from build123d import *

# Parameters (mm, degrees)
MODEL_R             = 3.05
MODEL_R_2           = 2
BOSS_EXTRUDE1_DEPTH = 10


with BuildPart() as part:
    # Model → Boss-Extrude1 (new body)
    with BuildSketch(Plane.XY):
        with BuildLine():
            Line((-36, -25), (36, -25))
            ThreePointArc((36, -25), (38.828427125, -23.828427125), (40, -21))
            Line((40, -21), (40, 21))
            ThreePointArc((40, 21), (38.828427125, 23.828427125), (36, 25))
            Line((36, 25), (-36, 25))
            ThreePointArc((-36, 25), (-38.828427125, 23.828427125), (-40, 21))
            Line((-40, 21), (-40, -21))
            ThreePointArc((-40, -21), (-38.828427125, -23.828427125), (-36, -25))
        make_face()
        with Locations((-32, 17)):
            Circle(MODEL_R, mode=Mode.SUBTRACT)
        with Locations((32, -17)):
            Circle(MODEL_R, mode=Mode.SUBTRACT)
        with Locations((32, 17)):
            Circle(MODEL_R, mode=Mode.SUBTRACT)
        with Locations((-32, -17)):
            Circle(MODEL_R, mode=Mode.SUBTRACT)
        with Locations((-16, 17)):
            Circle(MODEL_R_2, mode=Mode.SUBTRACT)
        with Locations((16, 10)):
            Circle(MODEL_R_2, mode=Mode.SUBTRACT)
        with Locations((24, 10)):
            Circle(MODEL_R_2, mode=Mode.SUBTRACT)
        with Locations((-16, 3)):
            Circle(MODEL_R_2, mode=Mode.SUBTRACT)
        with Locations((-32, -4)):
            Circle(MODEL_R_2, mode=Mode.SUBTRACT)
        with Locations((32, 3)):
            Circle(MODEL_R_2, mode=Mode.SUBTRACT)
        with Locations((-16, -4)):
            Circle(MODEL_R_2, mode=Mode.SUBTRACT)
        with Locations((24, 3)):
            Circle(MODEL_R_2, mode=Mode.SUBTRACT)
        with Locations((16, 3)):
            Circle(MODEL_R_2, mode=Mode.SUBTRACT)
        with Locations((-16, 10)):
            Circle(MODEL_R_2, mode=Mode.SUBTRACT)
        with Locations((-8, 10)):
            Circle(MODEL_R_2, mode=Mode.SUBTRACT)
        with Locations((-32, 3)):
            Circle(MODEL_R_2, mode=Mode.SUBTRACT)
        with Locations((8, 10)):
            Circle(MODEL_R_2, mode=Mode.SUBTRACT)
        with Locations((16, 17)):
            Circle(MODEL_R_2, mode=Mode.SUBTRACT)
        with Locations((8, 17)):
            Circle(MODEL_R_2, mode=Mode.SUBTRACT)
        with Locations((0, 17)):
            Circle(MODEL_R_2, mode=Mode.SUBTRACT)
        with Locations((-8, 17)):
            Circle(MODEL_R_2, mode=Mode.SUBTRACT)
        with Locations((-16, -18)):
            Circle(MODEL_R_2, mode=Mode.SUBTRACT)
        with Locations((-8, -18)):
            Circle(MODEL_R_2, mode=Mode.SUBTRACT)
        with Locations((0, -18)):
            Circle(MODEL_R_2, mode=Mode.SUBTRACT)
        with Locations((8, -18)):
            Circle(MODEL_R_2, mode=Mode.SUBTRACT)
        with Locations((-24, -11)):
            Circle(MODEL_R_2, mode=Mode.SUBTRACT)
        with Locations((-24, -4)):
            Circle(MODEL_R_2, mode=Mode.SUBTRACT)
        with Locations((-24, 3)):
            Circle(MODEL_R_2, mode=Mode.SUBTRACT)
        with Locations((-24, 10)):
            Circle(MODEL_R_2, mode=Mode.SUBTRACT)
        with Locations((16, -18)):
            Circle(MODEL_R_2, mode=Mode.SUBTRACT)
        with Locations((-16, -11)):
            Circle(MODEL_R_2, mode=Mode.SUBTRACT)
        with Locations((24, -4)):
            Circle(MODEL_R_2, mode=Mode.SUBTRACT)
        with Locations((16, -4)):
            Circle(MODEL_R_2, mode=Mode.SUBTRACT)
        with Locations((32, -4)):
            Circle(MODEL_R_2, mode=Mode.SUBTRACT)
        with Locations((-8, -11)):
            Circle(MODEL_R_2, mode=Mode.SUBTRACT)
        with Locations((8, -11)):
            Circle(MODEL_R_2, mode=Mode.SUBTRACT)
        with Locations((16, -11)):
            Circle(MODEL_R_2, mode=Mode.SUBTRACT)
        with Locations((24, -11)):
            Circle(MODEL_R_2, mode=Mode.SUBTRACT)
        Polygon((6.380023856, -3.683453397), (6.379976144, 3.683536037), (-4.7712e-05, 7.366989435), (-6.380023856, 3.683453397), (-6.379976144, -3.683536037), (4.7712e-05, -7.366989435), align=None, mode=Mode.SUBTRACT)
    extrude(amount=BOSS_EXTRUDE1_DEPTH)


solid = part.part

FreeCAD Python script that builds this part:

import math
import FreeCAD as App
import Part
import Sketcher
Q = App.Units.Quantity


def add_polygon(sketch, points):
    """Adds a closed chain of lines whose ends are joined by coincident constraints."""
    first, n = sketch.GeometryCount, len(points)
    for a, b in zip(points, points[1:] + points[:1]):
        sketch.addGeometry(Part.LineSegment(App.Vector(*a, 0), App.Vector(*b, 0)), False)
    for i in range(n):
        sketch.addConstraint(Sketcher.Constraint("Coincident", first + i, 2, first + (i + 1) % n, 1))

doc = App.newDocument("Part")
body = doc.addObject("PartDesign::Body", "Body")

sketch1 = body.newObject("Sketcher::SketchObject", "Sketch")
sketch1.AttachmentSupport = (doc.getObject("XY_Plane"), [""])
sketch1.MapMode = "FlatFace"
sketch1.addGeometry(Part.LineSegment(App.Vector(-36, -25, 0), App.Vector(36, -25, 0)), False)
sketch1.addGeometry(Part.ArcOfCircle(Part.Circle(App.Vector(36, -21, 0), App.Vector(0, 0, 1), 4), math.radians(-90), math.radians(0)), False)
sketch1.addGeometry(Part.LineSegment(App.Vector(40, -21, 0), App.Vector(40, 21, 0)), False)
sketch1.addGeometry(Part.ArcOfCircle(Part.Circle(App.Vector(36, 21, 0), App.Vector(0, 0, 1), 4), math.radians(0), math.radians(90)), False)
sketch1.addGeometry(Part.LineSegment(App.Vector(36, 25, 0), App.Vector(-36, 25, 0)), False)
sketch1.addGeometry(Part.ArcOfCircle(Part.Circle(App.Vector(-36, 21, 0), App.Vector(0, 0, 1), 4), math.radians(90), math.radians(180)), False)
sketch1.addGeometry(Part.LineSegment(App.Vector(-40, 21, 0), App.Vector(-40, -21, 0)), False)
sketch1.addGeometry(Part.ArcOfCircle(Part.Circle(App.Vector(-36, -21, 0), App.Vector(0, 0, 1), 4), math.radians(180), math.radians(270)), False)
sketch1.addGeometry(Part.Circle(App.Vector(-32, -17, 0), App.Vector(0, 0, 1), 3.05), False)
sketch1.addGeometry(Part.Circle(App.Vector(-24, -11, 0), App.Vector(0, 0, 1), 2), False)
sketch1.addGeometry(Part.Circle(App.Vector(-16, -18, 0), App.Vector(0, 0, 1), 2), False)
sketch1.addGeometry(Part.Circle(App.Vector(-8, -18, 0), App.Vector(0, 0, 1), 2), False)
sketch1.addGeometry(Part.Circle(App.Vector(-16, -11, 0), App.Vector(0, 0, 1), 2), False)
sketch1.addGeometry(Part.Circle(App.Vector(-8, -11, 0), App.Vector(0, 0, 1), 2), False)
sketch1.addGeometry(Part.Circle(App.Vector(-32, -4, 0), App.Vector(0, 0, 1), 2), False)
sketch1.addGeometry(Part.Circle(App.Vector(-24, -4, 0), App.Vector(0, 0, 1), 2), False)
sketch1.addGeometry(Part.Circle(App.Vector(-16, -4, 0), App.Vector(0, 0, 1), 2), False)
sketch1.addGeometry(Part.Circle(App.Vector(0, -18, 0), App.Vector(0, 0, 1), 2), False)
sketch1.addGeometry(Part.Circle(App.Vector(8, -18, 0), App.Vector(0, 0, 1), 2), False)
sketch1.addGeometry(Part.Circle(App.Vector(16, -18, 0), App.Vector(0, 0, 1), 2), False)
sketch1.addGeometry(Part.Circle(App.Vector(8, -11, 0), App.Vector(0, 0, 1), 2), False)
sketch1.addGeometry(Part.Circle(App.Vector(16, -11, 0), App.Vector(0, 0, 1), 2), False)
sketch1.addGeometry(Part.Circle(App.Vector(32, -17, 0), App.Vector(0, 0, 1), 3.05), False)
sketch1.addGeometry(Part.Circle(App.Vector(24, -11, 0), App.Vector(0, 0, 1), 2), False)
add_polygon(sketch1, [(6.379976, 3.683536), (6.380024, -3.683453), (0.000048, -7.366989), (-6.379976, -3.683536), (-6.380024, 3.683453), (-0.000048, 7.366989)])
sketch1.addGeometry(Part.Circle(App.Vector(16, -4, 0), App.Vector(0, 0, 1), 2), False)
sketch1.addGeometry(Part.Circle(App.Vector(24, -4, 0), App.Vector(0, 0, 1), 2), False)
sketch1.addGeometry(Part.Circle(App.Vector(32, -4, 0), App.Vector(0, 0, 1), 2), False)
sketch1.addGeometry(Part.Circle(App.Vector(-32, 3, 0), App.Vector(0, 0, 1), 2), False)
sketch1.addGeometry(Part.Circle(App.Vector(-24, 3, 0), App.Vector(0, 0, 1), 2), False)
sketch1.addGeometry(Part.Circle(App.Vector(-24, 10, 0), App.Vector(0, 0, 1), 2), False)
sketch1.addGeometry(Part.Circle(App.Vector(-16, 3, 0), App.Vector(0, 0, 1), 2), False)
sketch1.addGeometry(Part.Circle(App.Vector(-16, 10, 0), App.Vector(0, 0, 1), 2), False)
sketch1.addGeometry(Part.Circle(App.Vector(-8, 10, 0), App.Vector(0, 0, 1), 2), False)
sketch1.addGeometry(Part.Circle(App.Vector(-32, 17, 0), App.Vector(0, 0, 1), 3.05), False)
sketch1.addGeometry(Part.Circle(App.Vector(-16, 17, 0), App.Vector(0, 0, 1), 2), False)
sketch1.addGeometry(Part.Circle(App.Vector(-8, 17, 0), App.Vector(0, 0, 1), 2), False)
sketch1.addGeometry(Part.Circle(App.Vector(16, 3, 0), App.Vector(0, 0, 1), 2), False)
sketch1.addGeometry(Part.Circle(App.Vector(8, 10, 0), App.Vector(0, 0, 1), 2), False)
sketch1.addGeometry(Part.Circle(App.Vector(16, 10, 0), App.Vector(0, 0, 1), 2), False)
sketch1.addGeometry(Part.Circle(App.Vector(24, 3, 0), App.Vector(0, 0, 1), 2), False)
sketch1.addGeometry(Part.Circle(App.Vector(32, 3, 0), App.Vector(0, 0, 1), 2), False)
sketch1.addGeometry(Part.Circle(App.Vector(24, 10, 0), App.Vector(0, 0, 1), 2), False)
sketch1.addGeometry(Part.Circle(App.Vector(0, 17, 0), App.Vector(0, 0, 1), 2), False)
sketch1.addGeometry(Part.Circle(App.Vector(8, 17, 0), App.Vector(0, 0, 1), 2), False)
sketch1.addGeometry(Part.Circle(App.Vector(16, 17, 0), App.Vector(0, 0, 1), 2), False)
sketch1.addGeometry(Part.Circle(App.Vector(32, 17, 0), App.Vector(0, 0, 1), 3.05), False)
sketch1.addConstraint(Sketcher.Constraint("Tangent", 0, 2, 1, 1))
sketch1.addConstraint(Sketcher.Constraint("Tangent", 1, 2, 2, 1))
sketch1.addConstraint(Sketcher.Constraint("Tangent", 2, 2, 3, 1))
sketch1.addConstraint(Sketcher.Constraint("Tangent", 3, 2, 4, 1))
sketch1.addConstraint(Sketcher.Constraint("Tangent", 4, 2, 5, 1))
sketch1.addConstraint(Sketcher.Constraint("Tangent", 5, 2, 6, 1))
sketch1.addConstraint(Sketcher.Constraint("Tangent", 6, 2, 7, 1))
sketch1.addConstraint(Sketcher.Constraint("Tangent", 7, 2, 0, 1))
sketch1.addConstraint(Sketcher.Constraint("Horizontal", 0))
sketch1.addConstraint(Sketcher.Constraint("Vertical", 2))
sketch1.addConstraint(Sketcher.Constraint("Horizontal", 4))
sketch1.addConstraint(Sketcher.Constraint("Vertical", 6))
sketch1.addConstraint(Sketcher.Constraint("Equal", 1, 3))
sketch1.addConstraint(Sketcher.Constraint("Equal", 3, 5))
sketch1.addConstraint(Sketcher.Constraint("Equal", 5, 7))
sketch1.addConstraint(Sketcher.Constraint("Equal", 9, 10))
sketch1.addConstraint(Sketcher.Constraint("Equal", 10, 11))
sketch1.addConstraint(Sketcher.Constraint("Equal", 11, 12))
sketch1.addConstraint(Sketcher.Constraint("Equal", 12, 13))
sketch1.addConstraint(Sketcher.Constraint("Equal", 13, 14))
sketch1.addConstraint(Sketcher.Constraint("Equal", 14, 15))
sketch1.addConstraint(Sketcher.Constraint("Equal", 15, 16))
sketch1.addConstraint(Sketcher.Constraint("Equal", 16, 17))
sketch1.addConstraint(Sketcher.Constraint("Equal", 17, 18))
sketch1.addConstraint(Sketcher.Constraint("Equal", 18, 19))
sketch1.addConstraint(Sketcher.Constraint("Equal", 19, 20))
sketch1.addConstraint(Sketcher.Constraint("Equal", 20, 21))
sketch1.addConstraint(Sketcher.Constraint("Equal", 8, 22))
sketch1.addConstraint(Sketcher.Constraint("Equal", 21, 23))
sketch1.addConstraint(Sketcher.Constraint("Equal", 23, 30))
sketch1.addConstraint(Sketcher.Constraint("Equal", 30, 31))
sketch1.addConstraint(Sketcher.Constraint("Equal", 31, 32))
sketch1.addConstraint(Sketcher.Constraint("Equal", 32, 33))
sketch1.addConstraint(Sketcher.Constraint("Equal", 33, 34))
sketch1.addConstraint(Sketcher.Constraint("Equal", 34, 35))
sketch1.addConstraint(Sketcher.Constraint("Equal", 35, 36))
sketch1.addConstraint(Sketcher.Constraint("Equal", 36, 37))
sketch1.addConstraint(Sketcher.Constraint("Equal", 37, 38))
sketch1.addConstraint(Sketcher.Constraint("Equal", 22, 39))
sketch1.addConstraint(Sketcher.Constraint("Equal", 38, 40))
sketch1.addConstraint(Sketcher.Constraint("Equal", 40, 41))
sketch1.addConstraint(Sketcher.Constraint("Equal", 41, 42))
sketch1.addConstraint(Sketcher.Constraint("Equal", 42, 43))
sketch1.addConstraint(Sketcher.Constraint("Equal", 43, 44))
sketch1.addConstraint(Sketcher.Constraint("Equal", 44, 45))
sketch1.addConstraint(Sketcher.Constraint("Equal", 45, 46))
sketch1.addConstraint(Sketcher.Constraint("Equal", 46, 47))
sketch1.addConstraint(Sketcher.Constraint("Equal", 47, 48))
sketch1.addConstraint(Sketcher.Constraint("Equal", 48, 49))
sketch1.addConstraint(Sketcher.Constraint("Equal", 49, 50))
sketch1.addConstraint(Sketcher.Constraint("Equal", 39, 51))
sketch1.addConstraint(Sketcher.Constraint("Symmetric", 1, 3, 5, 3, -1, 1))
sketch1.addConstraint(Sketcher.Constraint("Symmetric", 22, 3, 39, 3, -1, 1))
sketch1.addConstraint(Sketcher.Constraint("Symmetric", 8, 3, 51, 3, -1, 1))
sketch1.addConstraint(Sketcher.Constraint("Symmetric", 24, 2, 27, 2, -1, 1))
sketch1.addConstraint(Sketcher.Constraint("Symmetric", 25, 2, 28, 2, -1, 1))
sketch1.addConstraint(Sketcher.Constraint("Symmetric", 26, 2, 29, 2, -1, 1))
sketch1.addConstraint(Sketcher.Constraint("Symmetric", 11, 3, 18, 3, -2))
sketch1.addConstraint(Sketcher.Constraint("Symmetric", 10, 3, 19, 3, -2))
sketch1.addConstraint(Sketcher.Constraint("Symmetric", 13, 3, 20, 3, -2))
sketch1.addConstraint(Sketcher.Constraint("Symmetric", 12, 3, 21, 3, -2))
sketch1.addConstraint(Sketcher.Constraint("Symmetric", 8, 3, 22, 3, -2))
sketch1.addConstraint(Sketcher.Constraint("Symmetric", 9, 3, 23, 3, -2))
sketch1.addConstraint(Sketcher.Constraint("Symmetric", 16, 3, 30, 3, -2))
sketch1.addConstraint(Sketcher.Constraint("Symmetric", 15, 3, 31, 3, -2))
sketch1.addConstraint(Sketcher.Constraint("Symmetric", 14, 3, 32, 3, -2))
sketch1.addConstraint(Sketcher.Constraint("Symmetric", 36, 3, 42, 3, -2))
sketch1.addConstraint(Sketcher.Constraint("Symmetric", 38, 3, 43, 3, -2))
sketch1.addConstraint(Sketcher.Constraint("Symmetric", 37, 3, 44, 3, -2))
sketch1.addConstraint(Sketcher.Constraint("Symmetric", 34, 3, 45, 3, -2))
sketch1.addConstraint(Sketcher.Constraint("Symmetric", 33, 3, 46, 3, -2))
sketch1.addConstraint(Sketcher.Constraint("Symmetric", 35, 3, 47, 3, -2))
sketch1.addConstraint(Sketcher.Constraint("Symmetric", 41, 3, 49, 3, -2))
sketch1.addConstraint(Sketcher.Constraint("Symmetric", 40, 3, 50, 3, -2))
sketch1.addConstraint(Sketcher.Constraint("PointOnObject", 17, 3, -2))
sketch1.addConstraint(Sketcher.Constraint("PointOnObject", 48, 3, -2))
sketch1.addConstraint(Sketcher.Constraint("Horizontal", 10, 3, 11, 3))
sketch1.addConstraint(Sketcher.Constraint("Horizontal", 9, 3, 12, 3))
sketch1.addConstraint(Sketcher.Constraint("Horizontal", 12, 3, 13, 3))
sketch1.addConstraint(Sketcher.Constraint("Horizontal", 14, 3, 15, 3))
sketch1.addConstraint(Sketcher.Constraint("Horizontal", 15, 3, 16, 3))
sketch1.addConstraint(Sketcher.Constraint("Horizontal", 11, 3, 17, 3))
sketch1.addConstraint(Sketcher.Constraint("Horizontal", 33, 3, 34, 3))
sketch1.addConstraint(Sketcher.Constraint("Horizontal", 34, 3, 36, 3))
sketch1.addConstraint(Sketcher.Constraint("Horizontal", 35, 3, 37, 3))
sketch1.addConstraint(Sketcher.Constraint("Horizontal", 37, 3, 38, 3))
sketch1.addConstraint(Sketcher.Constraint("Horizontal", 39, 3, 40, 3))
sketch1.addConstraint(Sketcher.Constraint("Horizontal", 40, 3, 41, 3))
sketch1.addConstraint(Sketcher.Constraint("Horizontal", 41, 3, 48, 3))
sketch1.addConstraint(Sketcher.Constraint("Vertical", 10, 3, 12, 3))
sketch1.addConstraint(Sketcher.Constraint("Vertical", 11, 3, 13, 3))
sketch1.addConstraint(Sketcher.Constraint("Vertical", 8, 3, 14, 3))
sketch1.addConstraint(Sketcher.Constraint("Vertical", 9, 3, 15, 3))
sketch1.addConstraint(Sketcher.Constraint("Vertical", 12, 3, 16, 3))
sketch1.addConstraint(Sketcher.Constraint("Vertical", 14, 3, 33, 3))
sketch1.addConstraint(Sketcher.Constraint("Vertical", 15, 3, 34, 3))
sketch1.addConstraint(Sketcher.Constraint("Vertical", 34, 3, 35, 3))
sketch1.addConstraint(Sketcher.Constraint("Vertical", 16, 3, 36, 3))
sketch1.addConstraint(Sketcher.Constraint("Vertical", 36, 3, 37, 3))
sketch1.addConstraint(Sketcher.Constraint("Vertical", 13, 3, 38, 3))
sketch1.addConstraint(Sketcher.Constraint("Vertical", 37, 3, 40, 3))
sketch1.addConstraint(Sketcher.Constraint("Vertical", 38, 3, 41, 3))
sketch1.addConstraint(Sketcher.Constraint("Equal", 24, 25))
sketch1.addConstraint(Sketcher.Constraint("Equal", 25, 26))
sketch1.addConstraint(Sketcher.Constraint("Diameter", 9, Q("4 mm")))
sketch1.addConstraint(Sketcher.Constraint("Radius", 1, Q("4 mm")))
sketch1.addConstraint(Sketcher.Constraint("Diameter", 8, Q("6.1 mm")))
sketch1.addConstraint(Sketcher.Constraint("DistanceX", 0, 1, 0, 2, Q("72 mm")))
sketch1.addConstraint(Sketcher.Constraint("DistanceY", 2, 1, 2, 2, Q("42 mm")))
sketch1.addConstraint(Sketcher.Constraint("DistanceX", 8, 3, -1, 1, Q("32 mm")))
sketch1.addConstraint(Sketcher.Constraint("DistanceY", 8, 3, -1, 1, Q("17 mm")))
sketch1.addConstraint(Sketcher.Constraint("DistanceX", 9, 3, -1, 1, Q("24 mm")))
sketch1.addConstraint(Sketcher.Constraint("DistanceY", 9, 3, -1, 1, Q("11 mm")))
sketch1.addConstraint(Sketcher.Constraint("DistanceX", 10, 3, -1, 1, Q("16 mm")))
sketch1.addConstraint(Sketcher.Constraint("DistanceY", 10, 3, -1, 1, Q("18 mm")))
sketch1.addConstraint(Sketcher.Constraint("DistanceX", 11, 3, -1, 1, Q("8 mm")))
sketch1.addConstraint(Sketcher.Constraint("DistanceY", 14, 3, -1, 1, Q("4 mm")))
sketch1.addConstraint(Sketcher.Constraint("DistanceY", -1, 1, 33, 3, Q("3 mm")))
sketch1.addConstraint(Sketcher.Constraint("DistanceY", -1, 1, 35, 3, Q("10 mm")))
sketch1.addConstraint(Sketcher.Constraint("Distance", 24, Q("7.366989 mm")))
sketch1.addConstraint(Sketcher.Constraint("DistanceY", 25, 2, -1, 1, Q("7.366989 mm")))
sketch1.addConstraint(Sketcher.Constraint("DistanceX", -1, 1, 24, 2, Q("6.380024 mm")))
sketch1.addConstraint(Sketcher.Constraint("DistanceY", 24, 2, -1, 1, Q("3.683453 mm")))
pad1 = body.newObject("PartDesign::Pad", "Pad")
pad1.Profile = sketch1
pad1.Length = 10

doc.recompute()
